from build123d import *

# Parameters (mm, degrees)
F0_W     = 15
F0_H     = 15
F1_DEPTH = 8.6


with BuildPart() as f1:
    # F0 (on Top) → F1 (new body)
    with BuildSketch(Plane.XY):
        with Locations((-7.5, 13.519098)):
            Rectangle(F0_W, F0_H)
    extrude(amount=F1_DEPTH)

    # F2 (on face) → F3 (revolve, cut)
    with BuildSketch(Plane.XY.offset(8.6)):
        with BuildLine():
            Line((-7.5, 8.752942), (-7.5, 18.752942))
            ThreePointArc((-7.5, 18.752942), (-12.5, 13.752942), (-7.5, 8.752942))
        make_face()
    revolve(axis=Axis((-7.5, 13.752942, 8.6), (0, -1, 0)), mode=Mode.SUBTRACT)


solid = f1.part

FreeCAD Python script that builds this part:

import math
import FreeCAD as App
import Part
import Sketcher
from FreeCAD import Vector
Q = App.Units.Quantity


def add_polygon(sketch, points):
    """Adds a closed chain of lines whose ends are joined by coincident constraints."""
    first, n = sketch.GeometryCount, len(points)
    for a, b in zip(points, points[1:] + points[:1]):
        sketch.addGeometry(Part.LineSegment(App.Vector(*a, 0), App.Vector(*b, 0)), False)
    for i in range(n):
        sketch.addConstraint(Sketcher.Constraint("Coincident", first + i, 2, first + (i + 1) % n, 1))

doc = App.newDocument("Part")
body = doc.addObject("PartDesign::Body", "Body")

# Sketch on XY plane
sketch1 = body.newObject("Sketcher::SketchObject", "Sketch")
sketch1.AttachmentSupport = (doc.getObject("XY_Plane"), [""])
sketch1.MapMode = "FlatFace"
add_polygon(sketch1, [(-15, 21.019098), (-15, 6.019098), (0, 6.019098), (0, 21.019098)])  # lines 0-3
sketch1.addConstraint([
    Sketcher.Constraint("Vertical", 0),
    Sketcher.Constraint("Horizontal", 1),
    Sketcher.Constraint("Vertical", 2),
    Sketcher.Constraint("Horizontal", 3),
    Sketcher.Constraint("PointOnObject", 1, 2, -2),
    Sketcher.Constraint("Equal", 3, 0),
    Sketcher.Constraint("DistanceX", 1, 1, 1, 2, Q("15 mm")),
    Sketcher.Constraint("DistanceY", -1, 1, 0, 2, Q("6.019098 mm")),
])
pad1 = body.newObject("PartDesign::Pad", "Pad")
pad1.Profile = sketch1
pad1.Length = 8.6

# Sketch on XY plane
sketch2 = body.newObject("Sketcher::SketchObject", "Sketch001")
sketch2.AttachmentSupport = (doc.getObject("XY_Plane"), [""])
sketch2.MapMode = "FlatFace"
sketch2.AttachmentOffset = App.Placement(Vector(0, 0, 8.6), App.Rotation())
sketch2.addGeometry([
    Part.LineSegment(Vector(-7.5, 8.752942, 0), Vector(-7.5, 18.752942, 0)),
    Part.ArcOfCircle(Part.Circle(Vector(-7.5, 13.752942, 0), Vector(0, 0, 1), 5), math.radians(90), math.radians(270)),
], False)
sketch2.addGeometry(Part.LineSegment(Vector(-7.5, 18.752942, 0), Vector(-7.5, 8.752942, 0)), True)  # axis
sketch2.addConstraint([
    Sketcher.Constraint("Coincident", 0, 1, 1, 2),
    Sketcher.Constraint("Coincident", 1, 1, 0, 2),
    Sketcher.Constraint("Vertical", 0),
    Sketcher.Constraint("Vertical", 2),
    Sketcher.Constraint("Coincident", 2, 1, 1, 1),
    Sketcher.Constraint("Vertical", 1, 3, 0, 1),
    Sketcher.Constraint("Equal", 0, 2),
    Sketcher.Constraint("Radius", 1, Q("5 mm")),
    Sketcher.Constraint("DistanceX", 1, 3, -1, 1, Q("7.5 mm")),
    Sketcher.Constraint("DistanceY", -1, 1, 1, 3, Q("13.752942 mm")),
])
groove = body.newObject("PartDesign::Groove", "Groove")
groove.Profile = sketch2
groove.ReferenceAxis = (sketch2, ["Axis0"])
groove.Angle = 360

doc.recompute()
